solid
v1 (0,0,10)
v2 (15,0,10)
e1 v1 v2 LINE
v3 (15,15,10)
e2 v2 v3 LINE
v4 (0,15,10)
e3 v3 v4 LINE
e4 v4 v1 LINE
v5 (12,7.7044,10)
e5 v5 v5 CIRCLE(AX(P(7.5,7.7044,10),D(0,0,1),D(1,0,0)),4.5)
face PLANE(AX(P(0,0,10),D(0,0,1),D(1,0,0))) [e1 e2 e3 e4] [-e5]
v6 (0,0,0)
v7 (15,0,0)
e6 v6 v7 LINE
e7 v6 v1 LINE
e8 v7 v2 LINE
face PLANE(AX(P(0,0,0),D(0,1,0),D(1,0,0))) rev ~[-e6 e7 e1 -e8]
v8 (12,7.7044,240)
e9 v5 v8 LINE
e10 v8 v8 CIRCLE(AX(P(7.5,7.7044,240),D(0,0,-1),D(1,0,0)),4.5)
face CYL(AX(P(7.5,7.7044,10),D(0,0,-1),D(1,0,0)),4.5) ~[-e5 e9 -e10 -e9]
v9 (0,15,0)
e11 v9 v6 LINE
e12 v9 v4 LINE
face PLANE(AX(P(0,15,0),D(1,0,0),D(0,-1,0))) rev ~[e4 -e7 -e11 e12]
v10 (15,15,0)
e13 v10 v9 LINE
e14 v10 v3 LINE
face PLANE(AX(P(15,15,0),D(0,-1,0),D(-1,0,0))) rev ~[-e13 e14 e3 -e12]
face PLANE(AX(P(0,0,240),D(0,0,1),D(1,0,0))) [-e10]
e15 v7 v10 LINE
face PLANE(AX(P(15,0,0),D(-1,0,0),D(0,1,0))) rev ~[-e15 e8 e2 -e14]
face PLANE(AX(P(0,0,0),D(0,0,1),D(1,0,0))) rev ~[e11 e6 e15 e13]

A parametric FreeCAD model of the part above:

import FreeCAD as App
import Part
import Sketcher


def add_polygon(sketch, points):
    """Adds a closed chain of lines whose ends are joined by coincident constraints."""
    first, n = sketch.GeometryCount, len(points)
    for a, b in zip(points, points[1:] + points[:1]):
        sketch.addGeometry(Part.LineSegment(App.Vector(*a, 0), App.Vector(*b, 0)), False)
    for i in range(n):
        sketch.addConstraint(Sketcher.Constraint("Coincident", first + i, 2, first + (i + 1) % n, 1))

doc = App.newDocument("Part")
params = doc.addObject("Spreadsheet::Sheet", "Params")
for row, (alias, value) in enumerate([
    ("sketch1_width", "15 mm"),
    ("pad1_length", "10 mm"),
    ("sketch2_diameter", "9 mm"),
    ("pad2_length", "230 mm"),
], start=1):
    params.set(f"A{row}", alias)
    params.set(f"B{row}", "=" + value)
    params.setAlias(f"B{row}", alias)

body = doc.addObject("PartDesign::Body", "Body")

# Sketch on XY plane
sketch1 = body.newObject("Sketcher::SketchObject", "Sketch")
sketch1.AttachmentSupport = (doc.getObject("XY_Plane"), [""])
sketch1.MapMode = "FlatFace"
add_polygon(sketch1, [(0, 15), (0, 0), (15, 0), (15, 15)])  # lines 0-3
sketch1.addConstraint([
    Sketcher.Constraint("Vertical", 0),
    Sketcher.Constraint("Horizontal", 1),
    Sketcher.Constraint("Vertical", 2),
    Sketcher.Constraint("Horizontal", 3),
    Sketcher.Constraint("Coincident", 0, 2, -1, 1),
    Sketcher.Constraint("Equal", 3, 0),
    Sketcher.Constraint("DistanceX", 1, 1, 1, 2, 15.0),
])
sketch1.setExpression("Constraints[10]", "Params.sketch1_width")
pad1 = body.newObject("PartDesign::Pad", "Pad")
pad1.Profile = sketch1
pad1.setExpression("Length", "Params.pad1_length")

# Sketch on XY plane
sketch2 = body.newObject("Sketcher::SketchObject", "Sketch001")
sketch2.AttachmentSupport = (doc.getObject("XY_Plane"), [""])
sketch2.MapMode = "FlatFace"
sketch2.AttachmentOffset = App.Placement(App.Vector(0, 0, 10), App.Rotation())
sketch2.addGeometry(Part.Circle(App.Vector(7.5, 7.7, 0), App.Vector(0, 0, 1), 4.5), False)
sketch2.addConstraint([
    Sketcher.Constraint("Diameter", 0, 9.0),
    Sketcher.Constraint("DistanceX", -1, 1, 0, 3, 7.5),
    Sketcher.Constraint("DistanceY", -1, 1, 0, 3, 7.7044),
])
sketch2.setExpression("Constraints[0]", "Params.sketch2_diameter")
pad2 = body.newObject("PartDesign::Pad", "Pad001")
pad2.Profile = sketch2
pad2.setExpression("Length", "Params.pad2_length")

doc.recompute()
